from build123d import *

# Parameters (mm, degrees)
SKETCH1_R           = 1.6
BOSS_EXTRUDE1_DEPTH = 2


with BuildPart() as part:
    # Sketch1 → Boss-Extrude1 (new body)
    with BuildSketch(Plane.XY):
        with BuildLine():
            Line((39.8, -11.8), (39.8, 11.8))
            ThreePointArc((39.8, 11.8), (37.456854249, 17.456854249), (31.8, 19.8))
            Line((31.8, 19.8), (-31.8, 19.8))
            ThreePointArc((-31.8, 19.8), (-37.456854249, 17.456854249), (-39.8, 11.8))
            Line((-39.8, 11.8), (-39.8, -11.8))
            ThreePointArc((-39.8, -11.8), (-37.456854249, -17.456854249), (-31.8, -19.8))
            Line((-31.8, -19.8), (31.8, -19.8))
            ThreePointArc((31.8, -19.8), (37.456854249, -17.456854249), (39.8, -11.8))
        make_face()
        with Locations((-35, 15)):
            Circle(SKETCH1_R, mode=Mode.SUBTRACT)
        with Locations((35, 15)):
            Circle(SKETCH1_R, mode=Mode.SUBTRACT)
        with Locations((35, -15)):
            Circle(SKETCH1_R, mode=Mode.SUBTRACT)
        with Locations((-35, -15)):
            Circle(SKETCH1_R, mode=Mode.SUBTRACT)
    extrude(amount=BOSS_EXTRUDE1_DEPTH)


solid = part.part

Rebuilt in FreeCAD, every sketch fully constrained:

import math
import FreeCAD as App
import Part
import Sketcher
from FreeCAD import Vector

doc = App.newDocument("Part")
body = doc.addObject("PartDesign::Body", "Body")

sketch1 = body.newObject("Sketcher::SketchObject", "Sketch")
sketch1.AttachmentSupport = (doc.getObject("XY_Plane"), [""])
sketch1.MapMode = "FlatFace"
sketch1.addGeometry(Part.LineSegment(Vector(39.8, -11.8, 0), Vector(39.8, 11.8, 0)), False)
sketch1.addGeometry(Part.ArcOfCircle(Part.Circle(Vector(31.8, 11.8, 0), Vector(0, 0, 1), 8), math.radians(0), math.radians(90)), False)
sketch1.addGeometry(Part.LineSegment(Vector(31.8, 19.8, 0), Vector(-31.8, 19.8, 0)), False)
sketch1.addGeometry(Part.ArcOfCircle(Part.Circle(Vector(-31.8, 11.8, 0), Vector(0, 0, 1), 8), math.radians(90), math.radians(180)), False)
sketch1.addGeometry(Part.LineSegment(Vector(-39.8, 11.8, 0), Vector(-39.8, -11.8, 0)), False)
sketch1.addGeometry(Part.ArcOfCircle(Part.Circle(Vector(-31.8, -11.8, 0), Vector(0, 0, 1), 8), math.radians(-180), math.radians(-90)), False)
sketch1.addGeometry(Part.LineSegment(Vector(-31.8, -19.8, 0), Vector(31.8, -19.8, 0)), False)
sketch1.addGeometry(Part.ArcOfCircle(Part.Circle(Vector(31.8, -11.8, 0), Vector(0, 0, 1), 8), math.radians(-90), math.radians(0)), False)
sketch1.addGeometry(Part.Circle(Vector(-35, -15, 0), Vector(0, 0, 1), 1.6), False)
sketch1.addGeometry(Part.Circle(Vector(35, -15, 0), Vector(0, 0, 1), 1.6), False)
sketch1.addGeometry(Part.Circle(Vector(-35, 15, 0), Vector(0, 0, 1), 1.6), False)
sketch1.addGeometry(Part.Circle(Vector(35, 15, 0), Vector(0, 0, 1), 1.6), False)
sketch1.addConstraint(Sketcher.Constraint("Tangent", 0, 2, 1, 1))
sketch1.addConstraint(Sketcher.Constraint("Tangent", 1, 2, 2, 1))
sketch1.addConstraint(Sketcher.Constraint("Tangent", 2, 2, 3, 1))
sketch1.addConstraint(Sketcher.Constraint("Tangent", 3, 2, 4, 1))
sketch1.addConstraint(Sketcher.Constraint("Tangent", 4, 2, 5, 1))
sketch1.addConstraint(Sketcher.Constraint("Tangent", 5, 2, 6, 1))
sketch1.addConstraint(Sketcher.Constraint("Tangent", 6, 2, 7, 1))
sketch1.addConstraint(Sketcher.Constraint("Tangent", 7, 2, 0, 1))
sketch1.addConstraint(Sketcher.Constraint("Vertical", 0))
sketch1.addConstraint(Sketcher.Constraint("Horizontal", 2))
sketch1.addConstraint(Sketcher.Constraint("Vertical", 4))
sketch1.addConstraint(Sketcher.Constraint("Horizontal", 6))
sketch1.addConstraint(Sketcher.Constraint("Equal", 1, 3))
sketch1.addConstraint(Sketcher.Constraint("Equal", 3, 5))
sketch1.addConstraint(Sketcher.Constraint("Equal", 5, 7))
sketch1.addConstraint(Sketcher.Constraint("Equal", 8, 9))
sketch1.addConstraint(Sketcher.Constraint("Equal", 9, 10))
sketch1.addConstraint(Sketcher.Constraint("Equal", 10, 11))
sketch1.addConstraint(Sketcher.Constraint("Symmetric", 1, 3, 5, 3, -1, 1))
sketch1.addConstraint(Sketcher.Constraint("Symmetric", 9, 3, 10, 3, -1, 1))
sketch1.addConstraint(Sketcher.Constraint("Symmetric", 8, 3, 11, 3, -1, 1))
sketch1.addConstraint(Sketcher.Constraint("Symmetric", 8, 3, 9, 3, -2))
sketch1.addConstraint(Sketcher.Constraint("Radius", 1, 8.0))
sketch1.addConstraint(Sketcher.Constraint("Diameter", 8, 3.2))
sketch1.addConstraint(Sketcher.Constraint("DistanceX", 2, 2, 2, 1, 63.6))
sketch1.addConstraint(Sketcher.Constraint("DistanceY", 0, 1, 0, 2, 23.6))
sketch1.addConstraint(Sketcher.Constraint("DistanceX", 8, 3, -1, 1, 35.0))
sketch1.addConstraint(Sketcher.Constraint("DistanceY", 8, 3, -1, 1, 15.0))
pad1 = body.newObject("PartDesign::Pad", "Pad")
pad1.Profile = sketch1
pad1.Length = 2

doc.recompute()
